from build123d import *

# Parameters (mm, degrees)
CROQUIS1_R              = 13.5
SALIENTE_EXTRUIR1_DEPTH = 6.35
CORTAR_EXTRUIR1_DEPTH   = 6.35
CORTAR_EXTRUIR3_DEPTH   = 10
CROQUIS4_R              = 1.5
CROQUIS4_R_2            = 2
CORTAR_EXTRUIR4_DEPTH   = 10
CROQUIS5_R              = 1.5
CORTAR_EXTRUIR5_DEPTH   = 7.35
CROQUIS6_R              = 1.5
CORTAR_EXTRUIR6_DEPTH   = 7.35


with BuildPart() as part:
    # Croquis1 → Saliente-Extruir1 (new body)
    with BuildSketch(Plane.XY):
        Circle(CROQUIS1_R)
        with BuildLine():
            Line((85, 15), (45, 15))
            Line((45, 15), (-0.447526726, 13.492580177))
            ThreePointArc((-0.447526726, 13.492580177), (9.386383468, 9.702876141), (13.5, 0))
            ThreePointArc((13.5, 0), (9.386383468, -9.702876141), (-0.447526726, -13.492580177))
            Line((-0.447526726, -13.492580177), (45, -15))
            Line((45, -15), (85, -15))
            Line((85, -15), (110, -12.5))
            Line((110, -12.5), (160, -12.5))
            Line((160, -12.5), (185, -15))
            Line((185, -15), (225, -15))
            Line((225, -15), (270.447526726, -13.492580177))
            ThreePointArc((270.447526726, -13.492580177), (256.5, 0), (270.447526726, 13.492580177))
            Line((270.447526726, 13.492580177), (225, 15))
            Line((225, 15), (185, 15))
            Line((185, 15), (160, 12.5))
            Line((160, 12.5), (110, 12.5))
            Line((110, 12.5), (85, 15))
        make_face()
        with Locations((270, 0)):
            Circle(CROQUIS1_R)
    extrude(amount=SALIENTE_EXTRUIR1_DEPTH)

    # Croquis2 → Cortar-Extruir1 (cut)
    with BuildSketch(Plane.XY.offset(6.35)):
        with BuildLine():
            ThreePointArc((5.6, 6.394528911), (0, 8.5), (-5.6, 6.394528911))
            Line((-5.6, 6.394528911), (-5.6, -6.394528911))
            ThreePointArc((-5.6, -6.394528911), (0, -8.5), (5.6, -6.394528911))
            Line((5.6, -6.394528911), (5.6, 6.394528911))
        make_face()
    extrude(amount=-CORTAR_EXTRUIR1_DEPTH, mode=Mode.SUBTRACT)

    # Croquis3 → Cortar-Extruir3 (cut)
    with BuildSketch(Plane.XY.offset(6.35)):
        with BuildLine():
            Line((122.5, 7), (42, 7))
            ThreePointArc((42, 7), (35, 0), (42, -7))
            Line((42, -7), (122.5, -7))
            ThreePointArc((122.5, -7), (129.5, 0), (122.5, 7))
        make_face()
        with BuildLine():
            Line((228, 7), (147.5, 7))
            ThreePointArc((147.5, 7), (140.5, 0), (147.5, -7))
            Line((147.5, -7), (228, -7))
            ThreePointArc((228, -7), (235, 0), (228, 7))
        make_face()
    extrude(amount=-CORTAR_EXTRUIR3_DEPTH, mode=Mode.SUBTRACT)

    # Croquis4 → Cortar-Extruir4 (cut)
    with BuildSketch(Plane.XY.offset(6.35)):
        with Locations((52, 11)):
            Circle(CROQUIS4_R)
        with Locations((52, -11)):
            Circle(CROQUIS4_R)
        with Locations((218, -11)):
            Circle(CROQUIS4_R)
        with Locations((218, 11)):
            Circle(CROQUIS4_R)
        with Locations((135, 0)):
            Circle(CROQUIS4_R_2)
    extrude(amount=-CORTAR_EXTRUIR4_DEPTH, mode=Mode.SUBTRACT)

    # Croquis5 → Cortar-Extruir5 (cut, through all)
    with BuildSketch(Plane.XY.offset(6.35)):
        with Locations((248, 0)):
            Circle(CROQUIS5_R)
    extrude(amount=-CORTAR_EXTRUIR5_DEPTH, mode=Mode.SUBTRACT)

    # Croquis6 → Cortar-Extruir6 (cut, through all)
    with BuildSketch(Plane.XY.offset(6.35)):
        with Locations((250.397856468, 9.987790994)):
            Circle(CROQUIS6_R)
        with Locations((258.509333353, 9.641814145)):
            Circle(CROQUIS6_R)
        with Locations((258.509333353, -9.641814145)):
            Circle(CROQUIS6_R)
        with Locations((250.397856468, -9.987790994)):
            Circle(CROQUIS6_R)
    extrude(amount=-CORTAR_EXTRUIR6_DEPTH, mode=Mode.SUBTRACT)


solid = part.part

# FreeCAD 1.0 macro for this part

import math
import FreeCAD as App
import Part
import Sketcher

V = App.Vector
Q = App.Units.Quantity

doc = App.newDocument("Part")
body = doc.addObject("PartDesign::Body", "Body")

sketch1 = body.newObject("Sketcher::SketchObject", "Sketch")
sketch1.AttachmentSupport = (doc.getObject("XY_Plane"), [""])
sketch1.MapMode = "FlatFace"
sketch1.addGeometry(Part.ArcOfCircle(Part.Circle(V(0, 0, 0), V(0, 0, 1), 14), math.radians(92), math.radians(268)), False)
sketch1.addGeometry(Part.LineSegment(V(0, -13, 0), V(45, -15, 0)), False)
sketch1.addGeometry(Part.LineSegment(V(45, -15, 0), V(85, -15, 0)), False)
sketch1.addGeometry(Part.LineSegment(V(85, -15, 0), V(110, -12, 0)), False)
sketch1.addGeometry(Part.LineSegment(V(110, -12, 0), V(160, -12, 0)), False)
sketch1.addGeometry(Part.LineSegment(V(160, -12, 0), V(185, -15, 0)), False)
sketch1.addGeometry(Part.LineSegment(V(185, -15, 0), V(225, -15, 0)), False)
sketch1.addGeometry(Part.LineSegment(V(225, -15, 0), V(270, -13, 0)), False)
sketch1.addGeometry(Part.ArcOfCircle(Part.Circle(V(270, 0, 0), V(0, 0, 1), 14), math.radians(-88), math.radians(88)), False)
sketch1.addGeometry(Part.LineSegment(V(270, 13, 0), V(225, 15, 0)), False)
sketch1.addGeometry(Part.LineSegment(V(225, 15, 0), V(185, 15, 0)), False)
sketch1.addGeometry(Part.LineSegment(V(185, 15, 0), V(160, 12, 0)), False)
sketch1.addGeometry(Part.LineSegment(V(160, 12, 0), V(110, 12, 0)), False)
sketch1.addGeometry(Part.LineSegment(V(110, 12, 0), V(85, 15, 0)), False)
sketch1.addGeometry(Part.LineSegment(V(85, 15, 0), V(45, 15, 0)), False)
sketch1.addGeometry(Part.LineSegment(V(45, 15, 0), V(0, 13, 0)), False)
sketch1.addConstraint(Sketcher.Constraint("Tangent", 0, 2, 1, 1))
sketch1.addConstraint(Sketcher.Constraint("Coincident", 1, 2, 2, 1))
sketch1.addConstraint(Sketcher.Constraint("Coincident", 2, 2, 3, 1))
sketch1.addConstraint(Sketcher.Constraint("Coincident", 3, 2, 4, 1))
sketch1.addConstraint(Sketcher.Constraint("Coincident", 4, 2, 5, 1))
sketch1.addConstraint(Sketcher.Constraint("Coincident", 5, 2, 6, 1))
sketch1.addConstraint(Sketcher.Constraint("Coincident", 6, 2, 7, 1))
sketch1.addConstraint(Sketcher.Constraint("Tangent", 7, 2, 8, 1))
sketch1.addConstraint(Sketcher.Constraint("Tangent", 8, 2, 9, 1))
sketch1.addConstraint(Sketcher.Constraint("Coincident", 9, 2, 10, 1))
sketch1.addConstraint(Sketcher.Constraint("Coincident", 10, 2, 11, 1))
sketch1.addConstraint(Sketcher.Constraint("Coincident", 11, 2, 12, 1))
sketch1.addConstraint(Sketcher.Constraint("Coincident", 12, 2, 13, 1))
sketch1.addConstraint(Sketcher.Constraint("Coincident", 13, 2, 14, 1))
sketch1.addConstraint(Sketcher.Constraint("Coincident", 14, 2, 15, 1))
sketch1.addConstraint(Sketcher.Constraint("Tangent", 15, 2, 0, 1))
sketch1.addConstraint(Sketcher.Constraint("Horizontal", 2))
sketch1.addConstraint(Sketcher.Constraint("Horizontal", 4))
sketch1.addConstraint(Sketcher.Constraint("Horizontal", 6))
sketch1.addConstraint(Sketcher.Constraint("Horizontal", 10))
sketch1.addConstraint(Sketcher.Constraint("Horizontal", 12))
sketch1.addConstraint(Sketcher.Constraint("Horizontal", 14))
sketch1.addConstraint(Sketcher.Constraint("Coincident", 0, 3, -1, 1))
sketch1.addConstraint(Sketcher.Constraint("Equal", 0, 8))
sketch1.addConstraint(Sketcher.Constraint("Symmetric", 7, 2, 8, 2, -1))
sketch1.addConstraint(Sketcher.Constraint("Symmetric", 5, 2, 10, 2, -1))
sketch1.addConstraint(Sketcher.Constraint("Symmetric", 4, 2, 11, 2, -1))
sketch1.addConstraint(Sketcher.Constraint("Symmetric", 2, 2, 13, 2, -1))
sketch1.addConstraint(Sketcher.Constraint("Parallel", 1, 9))
sketch1.addConstraint(Sketcher.Constraint("Parallel", 3, 11))
sketch1.addConstraint(Sketcher.Constraint("Parallel", 5, 13))
sketch1.addConstraint(Sketcher.Constraint("Parallel", 7, 15))
sketch1.addConstraint(Sketcher.Constraint("Horizontal", 2, 2, 5, 2))
sketch1.addConstraint(Sketcher.Constraint("Equal", 2, 6))
sketch1.addConstraint(Sketcher.Constraint("Radius", 0, Q("13.5 mm")))
sketch1.addConstraint(Sketcher.Constraint("DistanceX", 2, 1, 2, 2, Q("40 mm")))
sketch1.addConstraint(Sketcher.Constraint("DistanceX", 4, 1, 4, 2, Q("50 mm")))
sketch1.addConstraint(Sketcher.Constraint("DistanceX", -1, 1, 8, 3, Q("270 mm")))
sketch1.addConstraint(Sketcher.Constraint("DistanceX", -1, 1, 1, 2, Q("45 mm")))
sketch1.addConstraint(Sketcher.Constraint("DistanceY", 1, 2, -1, 1, Q("15 mm")))
sketch1.addConstraint(Sketcher.Constraint("DistanceY", 4, 2, 11, 2, Q("25 mm")))
pad1 = body.newObject("PartDesign::Pad", "Pad")
pad1.Profile = sketch1
pad1.Length = 6.35

sketch2 = body.newObject("Sketcher::SketchObject", "Sketch001")
sketch2.AttachmentSupport = (doc.getObject("XY_Plane"), [""])
sketch2.MapMode = "FlatFace"
sketch2.AttachmentOffset = App.Placement(V(0, 0, 6.35), App.Rotation())
sketch2.addGeometry(Part.ArcOfCircle(Part.Circle(V(0, 0, 0), V(0, 0, 1), 8), math.radians(49), math.radians(131)), False)
sketch2.addGeometry(Part.LineSegment(V(-6, 6, 0), V(-6, -6, 0)), False)
sketch2.addGeometry(Part.ArcOfCircle(Part.Circle(V(0, 0, 0), V(0, 0, 1), 8), math.radians(-131), math.radians(-49)), False)
sketch2.addGeometry(Part.LineSegment(V(6, -6, 0), V(6, 6, 0)), False)
sketch2.addConstraint(Sketcher.Constraint("Coincident", 0, 2, 1, 1))
sketch2.addConstraint(Sketcher.Constraint("Coincident", 1, 2, 2, 1))
sketch2.addConstraint(Sketcher.Constraint("Coincident", 2, 2, 3, 1))
sketch2.addConstraint(Sketcher.Constraint("Coincident", 3, 2, 0, 1))
sketch2.addConstraint(Sketcher.Constraint("Vertical", 1))
sketch2.addConstraint(Sketcher.Constraint("Vertical", 3))
sketch2.addConstraint(Sketcher.Constraint("Coincident", 0, 3, -1, 1))
sketch2.addConstraint(Sketcher.Constraint("Coincident", 2, 3, -1, 1))
sketch2.addConstraint(Sketcher.Constraint("Equal", 0, 2))
sketch2.addConstraint(Sketcher.Constraint("Horizontal", 1, 2, 2, 2))
sketch2.addConstraint(Sketcher.Constraint("Radius", 0, Q("8.5 mm")))
sketch2.addConstraint(Sketcher.Constraint("DistanceX", 0, 2, -1, 1, Q("5.6 mm")))
pocket1 = body.newObject("PartDesign::Pocket", "Pocket")
pocket1.Profile = sketch2
pocket1.Length = 6.35

sketch3 = body.newObject("Sketcher::SketchObject", "Sketch002")
sketch3.AttachmentSupport = (doc.getObject("XY_Plane"), [""])
sketch3.MapMode = "FlatFace"
sketch3.AttachmentOffset = App.Placement(V(0, 0, 6.35), App.Rotation())
sketch3.addGeometry(Part.LineSegment(V(122, 7, 0), V(42, 7, 0)), False)
sketch3.addGeometry(Part.ArcOfCircle(Part.Circle(V(42, 0, 0), V(0, 0, 1), 7), math.radians(90), math.radians(270)), False)
sketch3.addGeometry(Part.LineSegment(V(42, -7, 0), V(122, -7, 0)), False)
sketch3.addGeometry(Part.ArcOfCircle(Part.Circle(V(122, 0, 0), V(0, 0, 1), 7), math.radians(-90), math.radians(90)), False)
sketch3.addGeometry(Part.LineSegment(V(228, 7, 0), V(148, 7, 0)), False)
sketch3.addGeometry(Part.ArcOfCircle(Part.Circle(V(148, 0, 0), V(0, 0, 1), 7), math.radians(90), math.radians(270)), False)
sketch3.addGeometry(Part.LineSegment(V(148, -7, 0), V(228, -7, 0)), False)
sketch3.addGeometry(Part.ArcOfCircle(Part.Circle(V(228, 0, 0), V(0, 0, 1), 7), math.radians(-90), math.radians(90)), False)
sketch3.addConstraint(Sketcher.Constraint("Tangent", 0, 2, 1, 1))
sketch3.addConstraint(Sketcher.Constraint("Tangent", 1, 2, 2, 1))
sketch3.addConstraint(Sketcher.Constraint("Tangent", 2, 2, 3, 1))
sketch3.addConstraint(Sketcher.Constraint("Tangent", 3, 2, 0, 1))
sketch3.addConstraint(Sketcher.Constraint("Tangent", 4, 2, 5, 1))
sketch3.addConstraint(Sketcher.Constraint("Tangent", 5, 2, 6, 1))
sketch3.addConstraint(Sketcher.Constraint("Tangent", 6, 2, 7, 1))
sketch3.addConstraint(Sketcher.Constraint("Tangent", 7, 2, 4, 1))
sketch3.addConstraint(Sketcher.Constraint("Horizontal", 0))
sketch3.addConstraint(Sketcher.Constraint("Horizontal", 2))
sketch3.addConstraint(Sketcher.Constraint("Horizontal", 4))
sketch3.addConstraint(Sketcher.Constraint("Horizontal", 6))
sketch3.addConstraint(Sketcher.Constraint("Equal", 3, 5))
sketch3.addConstraint(Sketcher.Constraint("PointOnObject", 1, 3, -1))
sketch3.addConstraint(Sketcher.Constraint("PointOnObject", 5, 3, -1))
sketch3.addConstraint(Sketcher.Constraint("Equal", 2, 4))
sketch3.addConstraint(Sketcher.Constraint("Radius", 1, Q("7 mm")))
sketch3.addConstraint(Sketcher.Constraint("DistanceX", 0, 2, 0, 1, Q("80.5 mm")))
sketch3.addConstraint(Sketcher.Constraint("DistanceX", -1, 1, 1, 3, Q("42 mm")))
sketch3.addConstraint(Sketcher.Constraint("DistanceX", -1, 1, 7, 3, Q("228 mm")))
pocket2 = body.newObject("PartDesign::Pocket", "Pocket001")
pocket2.Profile = sketch3
pocket2.Length = 10

sketch4 = body.newObject("Sketcher::SketchObject", "Sketch003")
sketch4.AttachmentSupport = (doc.getObject("XY_Plane"), [""])
sketch4.MapMode = "FlatFace"
sketch4.AttachmentOffset = App.Placement(V(0, 0, 6.35), App.Rotation())
sketch4.addGeometry(Part.Circle(V(52, 11, 0), V(0, 0, 1), 1.5), False)
sketch4.addGeometry(Part.Circle(V(52, -11, 0), V(0, 0, 1), 1.5), False)
sketch4.addGeometry(Part.Circle(V(218, -11, 0), V(0, 0, 1), 1.5), False)
sketch4.addGeometry(Part.Circle(V(218, 11, 0), V(0, 0, 1), 1.5), False)
sketch4.addGeometry(Part.Circle(V(135, 0, 0), V(0, 0, 1), 2), False)
sketch4.addConstraint(Sketcher.Constraint("Equal", 0, 1))
sketch4.addConstraint(Sketcher.Constraint("Equal", 1, 2))
sketch4.addConstraint(Sketcher.Constraint("Equal", 2, 3))
sketch4.addConstraint(Sketcher.Constraint("Symmetric", 0, 3, 1, 3, -1))
sketch4.addConstraint(Sketcher.Constraint("Symmetric", 2, 3, 3, 3, -1))
sketch4.addConstraint(Sketcher.Constraint("PointOnObject", 4, 3, -1))
sketch4.addConstraint(Sketcher.Constraint("Horizontal", 1, 3, 2, 3))
sketch4.addConstraint(Sketcher.Constraint("Diameter", 0, Q("3 mm")))
sketch4.addConstraint(Sketcher.Constraint("Diameter", 4, Q("4 mm")))
sketch4.addConstraint(Sketcher.Constraint("DistanceX", -1, 1, 0, 3, Q("52 mm")))
sketch4.addConstraint(Sketcher.Constraint("DistanceY", -1, 1, 0, 3, Q("11 mm")))
sketch4.addConstraint(Sketcher.Constraint("DistanceX", -1, 1, 2, 3, Q("218 mm")))
sketch4.addConstraint(Sketcher.Constraint("DistanceX", -1, 1, 4, 3, Q("135 mm")))
pocket3 = body.newObject("PartDesign::Pocket", "Pocket002")
pocket3.Profile = sketch4
pocket3.Length = 10

sketch5 = body.newObject("Sketcher::SketchObject", "Sketch004")
sketch5.AttachmentSupport = (doc.getObject("XY_Plane"), [""])
sketch5.MapMode = "FlatFace"
sketch5.AttachmentOffset = App.Placement(V(0, 0, 6.35), App.Rotation())
sketch5.addGeometry(Part.Circle(V(248, 0, 0), V(0, 0, 1), 1.5), False)
sketch5.addConstraint(Sketcher.Constraint("PointOnObject", 0, 3, -1))
sketch5.addConstraint(Sketcher.Constraint("Diameter", 0, Q("3 mm")))
sketch5.addConstraint(Sketcher.Constraint("DistanceX", -1, 1, 0, 3, Q("248 mm")))
pocket4 = body.newObject("PartDesign::Pocket", "Pocket003")
pocket4.Profile = sketch5
pocket4.Type = "ThroughAll"

sketch6 = body.newObject("Sketcher::SketchObject", "Sketch005")
sketch6.AttachmentSupport = (doc.getObject("XY_Plane"), [""])
sketch6.MapMode = "FlatFace"
sketch6.AttachmentOffset = App.Placement(V(0, 0, 6.35), App.Rotation())
sketch6.addGeometry(Part.Circle(V(250.4, 10, 0), V(0, 0, 1), 1.5), False)
sketch6.addGeometry(Part.Circle(V(258.5, 9.6, 0), V(0, 0, 1), 1.5), False)
sketch6.addGeometry(Part.Circle(V(258.5, -9.6, 0), V(0, 0, 1), 1.5), False)
sketch6.addGeometry(Part.Circle(V(250.4, -10, 0), V(0, 0, 1), 1.5), False)
sketch6.addConstraint(Sketcher.Constraint("Equal", 0, 1))
sketch6.addConstraint(Sketcher.Constraint("Equal", 1, 2))
sketch6.addConstraint(Sketcher.Constraint("Equal", 2, 3))
sketch6.addConstraint(Sketcher.Constraint("Symmetric", 1, 3, 2, 3, -1))
sketch6.addConstraint(Sketcher.Constraint("Symmetric", 0, 3, 3, 3, -1))
sketch6.addConstraint(Sketcher.Constraint("Diameter", 0, Q("3 mm")))
sketch6.addConstraint(Sketcher.Constraint("DistanceY", -1, 1, 0, 3, Q("9.987791 mm")))
sketch6.addConstraint(Sketcher.Constraint("DistanceY", 2, 3, 1, 3, Q("19.283628 mm")))
sketch6.addConstraint(Sketcher.Constraint("DistanceX", -1, 1, 0, 3, Q("250.397856 mm")))
sketch6.addConstraint(Sketcher.Constraint("DistanceX", -1, 1, 1, 3, Q("258.509333 mm")))
pocket5 = body.newObject("PartDesign::Pocket", "Pocket004")
pocket5.Profile = sketch6
pocket5.Type = "ThroughAll"

doc.recompute()
